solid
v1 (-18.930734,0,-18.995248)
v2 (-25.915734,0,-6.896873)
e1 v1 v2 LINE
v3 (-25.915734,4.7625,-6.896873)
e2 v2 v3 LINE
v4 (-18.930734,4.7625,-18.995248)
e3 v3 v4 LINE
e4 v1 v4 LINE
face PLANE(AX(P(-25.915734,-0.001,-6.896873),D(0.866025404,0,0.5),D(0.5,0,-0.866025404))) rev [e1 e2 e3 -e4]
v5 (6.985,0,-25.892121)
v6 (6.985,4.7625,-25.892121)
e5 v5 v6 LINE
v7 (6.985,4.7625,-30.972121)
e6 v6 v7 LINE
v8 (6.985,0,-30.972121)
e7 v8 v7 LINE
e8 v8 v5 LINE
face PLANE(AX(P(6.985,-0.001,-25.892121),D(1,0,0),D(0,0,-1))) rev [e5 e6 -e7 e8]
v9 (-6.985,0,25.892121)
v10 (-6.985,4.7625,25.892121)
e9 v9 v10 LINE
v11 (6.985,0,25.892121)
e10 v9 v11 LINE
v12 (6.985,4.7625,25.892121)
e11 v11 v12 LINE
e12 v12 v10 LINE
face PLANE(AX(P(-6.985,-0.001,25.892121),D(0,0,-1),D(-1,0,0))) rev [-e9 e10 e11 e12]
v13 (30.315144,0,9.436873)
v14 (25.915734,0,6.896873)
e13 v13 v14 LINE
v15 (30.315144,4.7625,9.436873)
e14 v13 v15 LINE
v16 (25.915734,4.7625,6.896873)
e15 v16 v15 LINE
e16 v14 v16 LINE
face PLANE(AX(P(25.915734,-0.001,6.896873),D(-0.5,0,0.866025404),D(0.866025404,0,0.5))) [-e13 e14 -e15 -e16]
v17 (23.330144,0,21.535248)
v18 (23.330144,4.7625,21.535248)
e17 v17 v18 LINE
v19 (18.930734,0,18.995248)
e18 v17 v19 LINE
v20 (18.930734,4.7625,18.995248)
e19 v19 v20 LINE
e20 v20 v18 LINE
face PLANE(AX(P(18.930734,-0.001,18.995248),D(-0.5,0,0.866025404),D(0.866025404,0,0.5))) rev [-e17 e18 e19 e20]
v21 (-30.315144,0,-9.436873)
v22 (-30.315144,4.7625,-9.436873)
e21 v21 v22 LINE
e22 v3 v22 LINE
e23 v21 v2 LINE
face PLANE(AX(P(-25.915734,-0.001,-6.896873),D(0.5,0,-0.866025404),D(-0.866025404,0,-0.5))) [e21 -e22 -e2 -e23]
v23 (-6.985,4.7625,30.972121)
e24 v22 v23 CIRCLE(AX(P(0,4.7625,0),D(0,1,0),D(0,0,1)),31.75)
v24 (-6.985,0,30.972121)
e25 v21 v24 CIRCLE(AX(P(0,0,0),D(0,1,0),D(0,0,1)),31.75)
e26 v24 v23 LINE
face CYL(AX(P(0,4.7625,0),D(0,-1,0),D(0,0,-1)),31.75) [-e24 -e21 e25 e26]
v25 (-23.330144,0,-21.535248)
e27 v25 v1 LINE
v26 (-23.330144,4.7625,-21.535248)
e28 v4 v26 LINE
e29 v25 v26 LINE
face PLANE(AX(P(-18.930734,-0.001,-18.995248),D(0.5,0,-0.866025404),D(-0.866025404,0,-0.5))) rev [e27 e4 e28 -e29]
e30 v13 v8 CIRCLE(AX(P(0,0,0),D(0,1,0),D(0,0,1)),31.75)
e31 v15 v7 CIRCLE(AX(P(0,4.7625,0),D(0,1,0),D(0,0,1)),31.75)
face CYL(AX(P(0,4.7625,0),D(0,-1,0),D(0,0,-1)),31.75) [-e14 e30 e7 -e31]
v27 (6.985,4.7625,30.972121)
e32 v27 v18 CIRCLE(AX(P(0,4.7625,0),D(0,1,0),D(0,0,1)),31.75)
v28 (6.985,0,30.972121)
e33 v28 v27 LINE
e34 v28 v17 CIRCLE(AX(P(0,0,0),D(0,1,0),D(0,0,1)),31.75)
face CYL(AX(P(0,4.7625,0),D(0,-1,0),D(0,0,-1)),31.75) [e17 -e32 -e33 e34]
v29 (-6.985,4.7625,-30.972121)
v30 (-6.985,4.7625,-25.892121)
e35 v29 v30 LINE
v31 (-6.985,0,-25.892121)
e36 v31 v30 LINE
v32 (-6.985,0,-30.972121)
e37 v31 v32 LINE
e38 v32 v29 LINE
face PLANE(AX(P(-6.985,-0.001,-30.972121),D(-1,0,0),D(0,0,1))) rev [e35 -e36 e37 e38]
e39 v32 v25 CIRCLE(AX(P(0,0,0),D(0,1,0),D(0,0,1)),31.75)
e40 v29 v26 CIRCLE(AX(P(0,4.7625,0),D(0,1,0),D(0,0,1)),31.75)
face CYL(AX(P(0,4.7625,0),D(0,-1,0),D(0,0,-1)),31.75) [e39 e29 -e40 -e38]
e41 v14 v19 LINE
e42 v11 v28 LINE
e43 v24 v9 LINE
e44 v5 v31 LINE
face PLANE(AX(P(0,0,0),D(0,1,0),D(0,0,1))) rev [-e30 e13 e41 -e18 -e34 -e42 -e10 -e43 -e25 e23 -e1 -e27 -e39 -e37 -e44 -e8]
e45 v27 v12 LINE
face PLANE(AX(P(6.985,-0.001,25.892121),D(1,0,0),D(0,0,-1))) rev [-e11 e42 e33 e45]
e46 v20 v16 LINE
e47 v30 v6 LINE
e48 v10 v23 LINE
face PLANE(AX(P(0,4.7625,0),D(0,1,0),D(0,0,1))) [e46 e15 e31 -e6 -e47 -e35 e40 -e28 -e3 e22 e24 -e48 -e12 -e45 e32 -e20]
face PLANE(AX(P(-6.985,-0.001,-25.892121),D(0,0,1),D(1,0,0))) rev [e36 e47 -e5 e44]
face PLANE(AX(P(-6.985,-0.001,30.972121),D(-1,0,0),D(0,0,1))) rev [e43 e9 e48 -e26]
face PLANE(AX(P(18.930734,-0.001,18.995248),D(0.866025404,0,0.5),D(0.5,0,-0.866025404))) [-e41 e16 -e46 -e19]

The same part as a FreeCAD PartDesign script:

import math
import FreeCAD as App
import Part
import Sketcher
from FreeCAD import Vector
Q = App.Units.Quantity

doc = App.newDocument("Part")
body = doc.addObject("PartDesign::Body", "Body")

# Sketch on XZ plane
sketch1 = body.newObject("Sketcher::SketchObject", "Sketch")
sketch1.AttachmentSupport = (doc.getObject("XZ_Plane"), [""])
sketch1.MapMode = "FlatFace"
sketch1.addGeometry(Part.Circle(Vector(0, 0, 0), Vector(0, 0, 1), 31.75), False)
sketch1.addConstraint([
    Sketcher.Constraint("Coincident", 0, 3, -1, 1),
    Sketcher.Constraint("Diameter", 0, Q("2.5 in")),
])
pad1 = body.newObject("PartDesign::Pad", "Pad")
pad1.Profile = sketch1
pad1.Length = Q("0.1875 in")
pad1.Reversed = True

# Sketch on XZ plane
sketch2 = body.newObject("Sketcher::SketchObject", "Sketch001")
sketch2.AttachmentSupport = (doc.getObject("XZ_Plane"), [""])
sketch2.MapMode = "FlatFace"
sketch2.AttachmentOffset = App.Placement(Vector(0, 0, -0.1875 * 25.4), App.Rotation())
sketch2.addGeometry([
    Part.LineSegment(Vector(-6.985, 25.892121, 0), Vector(-6.985, 30.972121, 0)),
    Part.ArcOfCircle(Part.Circle(Vector(0, 0, 0), Vector(0, 0, 1), 31.75), math.radians(77.290967), math.radians(102.709033)),
    Part.LineSegment(Vector(6.985, 30.972121, 0), Vector(6.985, 25.892121, 0)),
    Part.LineSegment(Vector(6.985, 25.892121, 0), Vector(-6.985, 25.892121, 0)),
], False)
sketch2.addConstraint([
    Sketcher.Constraint("Coincident", 0, 2, 1, 2),
    Sketcher.Constraint("Coincident", 1, 1, 2, 1),
    Sketcher.Constraint("Coincident", 2, 2, 3, 1),
    Sketcher.Constraint("Coincident", 3, 2, 0, 1),
    Sketcher.Constraint("Vertical", 0),
    Sketcher.Constraint("Vertical", 2),
    Sketcher.Constraint("Horizontal", 3),
    Sketcher.Constraint("Coincident", 1, 3, -1, 1),
    Sketcher.Constraint("Horizontal", 0, 2, 1, 1),
    Sketcher.Constraint("Radius", 1, Q("1.25 in")),
    Sketcher.Constraint("DistanceY", 0, 1, 0, 2, Q("0.2 in")),
    Sketcher.Constraint("DistanceX", 3, 2, 3, 1, Q("0.55 in")),
])
pocket1 = body.newObject("PartDesign::Pocket", "Pocket")
pocket1.Profile = sketch2
pocket1.Type = "UpToFirst"
pocket1.Reversed = True

# Sketch on XZ plane
sketch3 = body.newObject("Sketcher::SketchObject", "Sketch002")
sketch3.AttachmentSupport = (doc.getObject("XZ_Plane"), [""])
sketch3.MapMode = "FlatFace"
sketch3.AttachmentOffset = App.Placement(Vector(0, 0, -0.1875 * 25.4), App.Rotation())
sketch3.addGeometry([
    Part.LineSegment(Vector(-6.985, -30.972121, 0), Vector(-6.985, -25.892121, 0)),
    Part.LineSegment(Vector(-6.985, -25.892121, 0), Vector(6.985, -25.892121, 0)),
    Part.LineSegment(Vector(6.985, -25.892121, 0), Vector(6.985, -30.972121, 0)),
    Part.ArcOfCircle(Part.Circle(Vector(0, 0, 0), Vector(0, 0, 1), 31.75), math.radians(-102.709033), math.radians(-77.290967)),
], False)
sketch3.addConstraint([
    Sketcher.Constraint("Coincident", 0, 2, 1, 1),
    Sketcher.Constraint("Coincident", 1, 2, 2, 1),
    Sketcher.Constraint("Coincident", 2, 2, 3, 2),
    Sketcher.Constraint("Coincident", 3, 1, 0, 1),
    Sketcher.Constraint("Vertical", 0),
    Sketcher.Constraint("Horizontal", 1),
    Sketcher.Constraint("Vertical", 2),
    Sketcher.Constraint("Coincident", 3, 3, -1, 1),
    Sketcher.Constraint("Horizontal", 2, 2, 3, 1),
    Sketcher.Constraint("Radius", 3, Q("1.25 in")),
    Sketcher.Constraint("DistanceY", 0, 1, 0, 2, Q("0.2 in")),
    Sketcher.Constraint("DistanceX", 1, 1, 1, 2, Q("0.55 in")),
])
pocket2 = body.newObject("PartDesign::Pocket", "Pocket001")
pocket2.Profile = sketch3
pocket2.Type = "UpToFirst"
pocket2.Reversed = True

# Sketch on XZ plane
sketch4 = body.newObject("Sketcher::SketchObject", "Sketch003")
sketch4.AttachmentSupport = (doc.getObject("XZ_Plane"), [""])
sketch4.MapMode = "FlatFace"
sketch4.AttachmentOffset = App.Placement(Vector(0, 0, -0.1875 * 25.4), App.Rotation())
sketch4.addGeometry([
    Part.LineSegment(Vector(25.915734, 6.896873, 0), Vector(18.930734, 18.995248, 0)),
    Part.LineSegment(Vector(18.930734, 18.995248, 0), Vector(23.330144, 21.535248, 0)),
    Part.ArcOfCircle(Part.Circle(Vector(0, 0, 0), Vector(0, 0, 1), 31.75), math.radians(17.290967), math.radians(42.709033)),
    Part.LineSegment(Vector(30.315144, 9.436873, 0), Vector(25.915734, 6.896873, 0)),
], False)
sketch4.addConstraint([
    Sketcher.Constraint("Coincident", 0, 2, 1, 1),
    Sketcher.Constraint("Coincident", 1, 2, 2, 2),
    Sketcher.Constraint("Coincident", 2, 1, 3, 1),
    Sketcher.Constraint("Coincident", 3, 2, 0, 1),
    Sketcher.Constraint("Coincident", 2, 3, -1, 1),
    Sketcher.Constraint("Perpendicular", 0, 1),
    Sketcher.Constraint("Parallel", 1, 3),
    Sketcher.Constraint("Equal", 1, 3),
    Sketcher.Constraint("Radius", 2, Q("1.25 in")),
    Sketcher.Constraint("Angle", 0, Q("120 deg")),
    Sketcher.Constraint("Distance", 1, Q("0.2 in")),
    Sketcher.Constraint("Distance", 0, Q("0.55 in")),
])
pocket3 = body.newObject("PartDesign::Pocket", "Pocket002")
pocket3.Profile = sketch4
pocket3.Type = "UpToFirst"
pocket3.Reversed = True

# Sketch on XZ plane
sketch5 = body.newObject("Sketcher::SketchObject", "Sketch004")
sketch5.AttachmentSupport = (doc.getObject("XZ_Plane"), [""])
sketch5.MapMode = "FlatFace"
sketch5.AttachmentOffset = App.Placement(Vector(0, 0, -0.1875 * 25.4), App.Rotation())
sketch5.addGeometry([
    Part.LineSegment(Vector(-30.315144, -9.436873, 0), Vector(-25.915734, -6.896873, 0)),
    Part.LineSegment(Vector(-25.915734, -6.896873, 0), Vector(-18.930734, -18.995248, 0)),
    Part.LineSegment(Vector(-18.930734, -18.995248, 0), Vector(-23.330144, -21.535248, 0)),
    Part.ArcOfCircle(Part.Circle(Vector(0, 0, 0), Vector(0, 0, 1), 31.75), math.radians(-162.709033), math.radians(-137.290967)),
], False)
sketch5.addConstraint([
    Sketcher.Constraint("Coincident", 0, 2, 1, 1),
    Sketcher.Constraint("Coincident", 1, 2, 2, 1),
    Sketcher.Constraint("Coincident", 2, 2, 3, 2),
    Sketcher.Constraint("Coincident", 3, 1, 0, 1),
    Sketcher.Constraint("Coincident", 3, 3, -1, 1),
    Sketcher.Constraint("Perpendicular", 0, 1),
    Sketcher.Constraint("Perpendicular", 1, 2),
    Sketcher.Constraint("Equal", 0, 2),
    Sketcher.Constraint("Radius", 3, Q("1.25 in")),
    Sketcher.Constraint("Angle", 0, Q("30 deg")),
    Sketcher.Constraint("Distance", 0, Q("0.2 in")),
    Sketcher.Constraint("Distance", 1, Q("0.55 in")),
])
pocket4 = body.newObject("PartDesign::Pocket", "Pocket003")
pocket4.Profile = sketch5
pocket4.Type = "UpToFirst"
pocket4.Reversed = True

doc.recompute()
